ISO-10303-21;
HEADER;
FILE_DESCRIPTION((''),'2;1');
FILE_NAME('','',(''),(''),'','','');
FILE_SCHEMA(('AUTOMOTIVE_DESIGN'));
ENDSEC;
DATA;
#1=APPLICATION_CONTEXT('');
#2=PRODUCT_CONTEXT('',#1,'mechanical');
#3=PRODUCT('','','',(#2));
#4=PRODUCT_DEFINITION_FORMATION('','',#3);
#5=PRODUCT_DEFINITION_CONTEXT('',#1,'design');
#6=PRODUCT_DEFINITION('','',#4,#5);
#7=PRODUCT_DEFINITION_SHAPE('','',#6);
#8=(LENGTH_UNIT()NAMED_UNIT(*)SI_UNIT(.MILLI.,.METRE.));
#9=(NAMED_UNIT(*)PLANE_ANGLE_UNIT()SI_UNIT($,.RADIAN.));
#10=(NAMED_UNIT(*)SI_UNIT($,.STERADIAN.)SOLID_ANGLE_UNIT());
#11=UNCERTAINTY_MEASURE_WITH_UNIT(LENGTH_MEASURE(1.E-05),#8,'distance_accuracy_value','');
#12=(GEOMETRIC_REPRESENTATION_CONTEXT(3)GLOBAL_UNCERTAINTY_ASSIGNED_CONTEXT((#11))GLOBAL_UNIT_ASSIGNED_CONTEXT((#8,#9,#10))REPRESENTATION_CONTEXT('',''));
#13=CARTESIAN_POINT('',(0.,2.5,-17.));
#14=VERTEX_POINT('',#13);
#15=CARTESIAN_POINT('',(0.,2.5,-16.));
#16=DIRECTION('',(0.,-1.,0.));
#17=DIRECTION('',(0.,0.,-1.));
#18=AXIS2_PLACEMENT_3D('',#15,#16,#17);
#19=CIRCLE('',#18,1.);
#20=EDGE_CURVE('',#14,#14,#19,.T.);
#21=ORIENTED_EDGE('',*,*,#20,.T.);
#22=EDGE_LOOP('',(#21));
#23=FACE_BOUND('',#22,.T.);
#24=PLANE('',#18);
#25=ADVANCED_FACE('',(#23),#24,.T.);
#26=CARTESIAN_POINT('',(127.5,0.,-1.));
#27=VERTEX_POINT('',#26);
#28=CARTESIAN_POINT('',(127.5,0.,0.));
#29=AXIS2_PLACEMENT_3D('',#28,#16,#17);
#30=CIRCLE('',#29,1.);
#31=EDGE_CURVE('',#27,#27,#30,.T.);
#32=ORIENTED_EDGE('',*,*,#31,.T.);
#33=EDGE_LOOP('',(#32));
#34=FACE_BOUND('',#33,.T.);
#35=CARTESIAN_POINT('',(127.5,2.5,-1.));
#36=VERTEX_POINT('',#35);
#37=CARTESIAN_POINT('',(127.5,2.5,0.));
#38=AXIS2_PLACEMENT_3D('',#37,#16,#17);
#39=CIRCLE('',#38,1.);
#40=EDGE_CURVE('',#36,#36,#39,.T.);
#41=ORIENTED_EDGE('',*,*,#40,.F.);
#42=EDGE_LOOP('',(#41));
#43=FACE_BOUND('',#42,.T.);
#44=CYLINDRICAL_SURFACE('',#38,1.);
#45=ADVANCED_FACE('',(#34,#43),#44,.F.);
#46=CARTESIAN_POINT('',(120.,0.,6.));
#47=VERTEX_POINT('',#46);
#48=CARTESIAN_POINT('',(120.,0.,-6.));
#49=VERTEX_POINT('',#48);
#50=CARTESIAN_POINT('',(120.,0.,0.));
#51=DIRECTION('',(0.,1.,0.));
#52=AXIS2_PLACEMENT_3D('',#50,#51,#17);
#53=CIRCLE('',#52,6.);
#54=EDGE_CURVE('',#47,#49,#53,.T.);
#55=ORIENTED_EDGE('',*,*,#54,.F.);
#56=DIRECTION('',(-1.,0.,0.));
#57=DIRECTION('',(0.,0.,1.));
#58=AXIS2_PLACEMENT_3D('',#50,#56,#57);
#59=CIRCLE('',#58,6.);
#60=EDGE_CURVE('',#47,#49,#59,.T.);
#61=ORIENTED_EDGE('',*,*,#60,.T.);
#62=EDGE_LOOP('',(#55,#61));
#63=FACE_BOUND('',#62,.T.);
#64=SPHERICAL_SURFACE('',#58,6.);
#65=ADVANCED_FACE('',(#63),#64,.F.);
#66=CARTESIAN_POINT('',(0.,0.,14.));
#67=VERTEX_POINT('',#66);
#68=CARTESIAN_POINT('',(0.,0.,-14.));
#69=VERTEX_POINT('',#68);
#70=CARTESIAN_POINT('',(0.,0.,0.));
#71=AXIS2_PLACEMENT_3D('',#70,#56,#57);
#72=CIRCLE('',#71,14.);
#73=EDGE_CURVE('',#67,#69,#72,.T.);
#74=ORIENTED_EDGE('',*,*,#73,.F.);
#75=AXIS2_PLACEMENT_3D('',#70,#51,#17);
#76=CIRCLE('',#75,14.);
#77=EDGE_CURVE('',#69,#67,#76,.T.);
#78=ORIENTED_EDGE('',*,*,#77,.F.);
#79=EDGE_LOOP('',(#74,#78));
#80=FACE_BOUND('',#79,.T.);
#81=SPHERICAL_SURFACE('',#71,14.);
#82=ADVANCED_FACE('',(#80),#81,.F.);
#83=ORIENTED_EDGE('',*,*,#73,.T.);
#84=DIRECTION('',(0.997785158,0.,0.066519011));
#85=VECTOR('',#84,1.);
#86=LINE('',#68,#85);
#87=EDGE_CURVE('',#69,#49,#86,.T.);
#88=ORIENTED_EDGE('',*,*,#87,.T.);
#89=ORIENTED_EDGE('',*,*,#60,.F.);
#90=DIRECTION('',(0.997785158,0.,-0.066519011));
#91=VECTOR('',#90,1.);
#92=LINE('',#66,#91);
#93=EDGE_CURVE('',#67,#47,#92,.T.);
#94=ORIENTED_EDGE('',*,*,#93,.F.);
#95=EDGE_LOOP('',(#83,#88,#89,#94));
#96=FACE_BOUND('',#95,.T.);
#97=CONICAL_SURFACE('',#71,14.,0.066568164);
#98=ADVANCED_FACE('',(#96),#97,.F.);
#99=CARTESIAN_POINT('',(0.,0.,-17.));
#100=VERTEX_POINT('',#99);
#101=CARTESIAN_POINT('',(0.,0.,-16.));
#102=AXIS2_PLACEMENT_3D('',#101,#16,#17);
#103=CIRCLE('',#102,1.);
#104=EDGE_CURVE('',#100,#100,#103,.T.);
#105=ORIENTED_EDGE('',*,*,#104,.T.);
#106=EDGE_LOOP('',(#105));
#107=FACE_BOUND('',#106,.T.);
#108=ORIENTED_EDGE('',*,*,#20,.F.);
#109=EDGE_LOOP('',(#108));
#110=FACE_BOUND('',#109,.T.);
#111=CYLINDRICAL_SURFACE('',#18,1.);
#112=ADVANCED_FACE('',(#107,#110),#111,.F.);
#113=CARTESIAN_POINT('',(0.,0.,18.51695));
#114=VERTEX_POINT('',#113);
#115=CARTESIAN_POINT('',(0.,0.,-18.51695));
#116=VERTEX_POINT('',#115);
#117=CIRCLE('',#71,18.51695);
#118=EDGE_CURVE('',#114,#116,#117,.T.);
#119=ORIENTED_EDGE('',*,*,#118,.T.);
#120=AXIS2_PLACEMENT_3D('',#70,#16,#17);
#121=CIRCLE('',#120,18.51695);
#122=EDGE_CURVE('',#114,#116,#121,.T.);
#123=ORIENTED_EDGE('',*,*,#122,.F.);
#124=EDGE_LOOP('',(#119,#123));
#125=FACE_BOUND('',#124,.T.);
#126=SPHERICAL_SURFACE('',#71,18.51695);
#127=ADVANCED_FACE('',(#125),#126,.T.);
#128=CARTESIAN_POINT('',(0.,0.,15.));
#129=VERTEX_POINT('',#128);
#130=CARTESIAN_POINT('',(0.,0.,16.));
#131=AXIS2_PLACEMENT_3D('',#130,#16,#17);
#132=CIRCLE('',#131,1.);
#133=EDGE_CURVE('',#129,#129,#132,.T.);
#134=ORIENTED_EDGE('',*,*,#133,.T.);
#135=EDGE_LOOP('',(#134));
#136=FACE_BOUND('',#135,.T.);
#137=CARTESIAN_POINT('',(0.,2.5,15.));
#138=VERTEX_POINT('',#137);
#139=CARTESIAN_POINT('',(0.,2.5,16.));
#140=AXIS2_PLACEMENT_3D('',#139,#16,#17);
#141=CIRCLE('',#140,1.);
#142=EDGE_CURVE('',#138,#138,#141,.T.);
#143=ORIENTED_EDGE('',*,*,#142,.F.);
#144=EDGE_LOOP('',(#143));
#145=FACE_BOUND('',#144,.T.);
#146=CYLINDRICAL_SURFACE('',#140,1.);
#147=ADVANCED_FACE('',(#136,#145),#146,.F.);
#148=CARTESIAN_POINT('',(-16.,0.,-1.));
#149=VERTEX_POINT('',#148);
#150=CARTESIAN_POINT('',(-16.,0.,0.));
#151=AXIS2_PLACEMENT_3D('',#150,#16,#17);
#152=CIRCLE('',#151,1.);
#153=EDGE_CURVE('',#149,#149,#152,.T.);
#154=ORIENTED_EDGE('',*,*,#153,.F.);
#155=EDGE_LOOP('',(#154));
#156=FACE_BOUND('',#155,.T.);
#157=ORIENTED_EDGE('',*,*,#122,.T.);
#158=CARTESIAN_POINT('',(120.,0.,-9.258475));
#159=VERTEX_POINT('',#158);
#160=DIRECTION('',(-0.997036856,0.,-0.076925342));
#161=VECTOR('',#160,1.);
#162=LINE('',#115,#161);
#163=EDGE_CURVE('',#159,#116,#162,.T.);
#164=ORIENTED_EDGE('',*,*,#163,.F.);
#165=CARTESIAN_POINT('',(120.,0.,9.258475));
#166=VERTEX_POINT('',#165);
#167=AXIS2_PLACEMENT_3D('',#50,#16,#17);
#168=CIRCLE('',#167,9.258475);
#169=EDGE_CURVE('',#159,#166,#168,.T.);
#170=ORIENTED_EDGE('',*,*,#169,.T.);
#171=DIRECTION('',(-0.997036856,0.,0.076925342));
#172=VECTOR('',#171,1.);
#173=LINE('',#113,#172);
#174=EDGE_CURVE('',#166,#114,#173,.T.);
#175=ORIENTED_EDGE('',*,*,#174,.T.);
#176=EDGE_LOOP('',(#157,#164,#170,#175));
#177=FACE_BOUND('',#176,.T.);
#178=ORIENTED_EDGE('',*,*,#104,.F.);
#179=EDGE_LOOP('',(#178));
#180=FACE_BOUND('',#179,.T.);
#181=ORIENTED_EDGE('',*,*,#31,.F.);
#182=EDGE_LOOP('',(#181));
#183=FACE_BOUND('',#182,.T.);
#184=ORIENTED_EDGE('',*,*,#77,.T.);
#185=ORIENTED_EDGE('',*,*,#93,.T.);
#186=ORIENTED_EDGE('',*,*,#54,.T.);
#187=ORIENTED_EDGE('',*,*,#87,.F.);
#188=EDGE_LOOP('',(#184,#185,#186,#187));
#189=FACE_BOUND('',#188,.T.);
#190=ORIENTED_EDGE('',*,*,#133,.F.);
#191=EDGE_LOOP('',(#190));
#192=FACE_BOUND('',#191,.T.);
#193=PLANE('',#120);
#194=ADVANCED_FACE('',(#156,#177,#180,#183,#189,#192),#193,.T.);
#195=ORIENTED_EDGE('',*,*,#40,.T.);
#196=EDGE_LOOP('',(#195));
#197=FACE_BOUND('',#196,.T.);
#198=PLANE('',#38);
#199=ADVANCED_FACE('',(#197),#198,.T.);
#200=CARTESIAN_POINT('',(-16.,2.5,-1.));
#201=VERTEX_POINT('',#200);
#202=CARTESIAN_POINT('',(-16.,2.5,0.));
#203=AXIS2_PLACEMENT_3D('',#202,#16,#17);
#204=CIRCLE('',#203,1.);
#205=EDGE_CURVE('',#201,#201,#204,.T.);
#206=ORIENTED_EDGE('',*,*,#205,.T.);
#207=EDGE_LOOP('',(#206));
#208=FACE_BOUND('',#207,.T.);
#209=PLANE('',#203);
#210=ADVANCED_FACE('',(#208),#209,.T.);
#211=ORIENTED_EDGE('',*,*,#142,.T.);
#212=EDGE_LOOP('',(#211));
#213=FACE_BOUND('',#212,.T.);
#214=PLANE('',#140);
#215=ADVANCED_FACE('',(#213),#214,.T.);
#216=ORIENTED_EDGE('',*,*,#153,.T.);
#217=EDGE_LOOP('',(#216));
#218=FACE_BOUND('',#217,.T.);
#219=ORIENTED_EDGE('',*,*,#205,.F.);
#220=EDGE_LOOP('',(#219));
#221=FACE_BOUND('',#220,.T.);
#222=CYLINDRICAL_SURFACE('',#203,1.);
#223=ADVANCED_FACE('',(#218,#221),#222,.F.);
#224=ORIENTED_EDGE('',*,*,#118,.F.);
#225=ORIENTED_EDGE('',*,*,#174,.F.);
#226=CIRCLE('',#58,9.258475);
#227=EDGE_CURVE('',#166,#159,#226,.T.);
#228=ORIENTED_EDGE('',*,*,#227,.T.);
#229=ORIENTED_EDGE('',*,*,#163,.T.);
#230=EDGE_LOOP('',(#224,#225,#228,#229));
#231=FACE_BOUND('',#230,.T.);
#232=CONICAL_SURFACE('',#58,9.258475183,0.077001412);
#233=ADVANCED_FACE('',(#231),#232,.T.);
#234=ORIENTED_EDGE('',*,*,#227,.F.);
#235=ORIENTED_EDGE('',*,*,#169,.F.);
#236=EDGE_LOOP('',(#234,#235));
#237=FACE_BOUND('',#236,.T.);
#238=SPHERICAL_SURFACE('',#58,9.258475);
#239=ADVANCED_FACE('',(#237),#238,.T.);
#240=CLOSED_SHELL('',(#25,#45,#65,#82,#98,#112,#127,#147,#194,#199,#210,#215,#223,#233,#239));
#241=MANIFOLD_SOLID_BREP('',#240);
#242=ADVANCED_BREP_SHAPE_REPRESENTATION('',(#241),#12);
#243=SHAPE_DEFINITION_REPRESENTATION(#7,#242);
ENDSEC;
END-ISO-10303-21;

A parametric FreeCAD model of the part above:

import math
import FreeCAD as App
import Part
import Sketcher
Q = App.Units.Quantity

doc = App.newDocument("Part")
body = doc.addObject("PartDesign::Body", "Body")

sketch1 = body.newObject("Sketcher::SketchObject", "Sketch")
sketch1.AttachmentSupport = (doc.getObject("XZ_Plane"), [""])
sketch1.MapMode = "FlatFace"
sketch1.addGeometry([
    Part.LineSegment(App.Vector(120, -9.258475, 0), App.Vector(0, -18.51695, 0)),
    Part.ArcOfCircle(Part.Circle(App.Vector(0, 0, 0), App.Vector(0, 0, 1), 18.51695), math.radians(180), math.radians(270)),
    Part.LineSegment(App.Vector(-18.51695, 0, 0), App.Vector(-14, 0, 0)),
    Part.ArcOfCircle(Part.Circle(App.Vector(0, 0, 0), App.Vector(0, 0, 1), 14), math.radians(180), math.radians(270)),
    Part.LineSegment(App.Vector(0, -14, 0), App.Vector(120, -6, 0)),
    Part.ArcOfCircle(Part.Circle(App.Vector(120, 0, 0), App.Vector(0, 0, 1), 6), math.radians(-90), math.radians(0)),
    Part.LineSegment(App.Vector(126, 0, 0), App.Vector(129.258475, 0, 0)),
    Part.ArcOfCircle(Part.Circle(App.Vector(120, 0, 0), App.Vector(0, 0, 1), 9.258475), math.radians(-90), math.radians(0)),
], False)
sketch1.addConstraint([
    Sketcher.Constraint("Coincident", 0, 2, 1, 2),
    Sketcher.Constraint("Coincident", 1, 1, 2, 1),
    Sketcher.Constraint("Coincident", 2, 2, 3, 1),
    Sketcher.Constraint("Coincident", 3, 2, 4, 1),
    Sketcher.Constraint("Coincident", 4, 2, 5, 1),
    Sketcher.Constraint("Coincident", 5, 2, 6, 1),
    Sketcher.Constraint("Coincident", 6, 2, 7, 2),
    Sketcher.Constraint("Coincident", 7, 1, 0, 1),
    Sketcher.Constraint("Horizontal", 2),
    Sketcher.Constraint("Horizontal", 6),
    Sketcher.Constraint("Coincident", 1, 3, -1, 1),
    Sketcher.Constraint("Coincident", 3, 3, -1, 1),
    Sketcher.Constraint("Coincident", 7, 3, 5, 3),
    Sketcher.Constraint("PointOnObject", 5, 3, -1),
    Sketcher.Constraint("PointOnObject", 0, 2, -2),
    Sketcher.Constraint("PointOnObject", 1, 1, -1),
    Sketcher.Constraint("PointOnObject", 3, 2, -2),
    Sketcher.Constraint("PointOnObject", 5, 2, -1),
    Sketcher.Constraint("Vertical", 7, 3, 4, 2),
    Sketcher.Constraint("Vertical", 4, 2, 7, 1),
    Sketcher.Constraint("Radius", 3, Q("14 mm")),
    Sketcher.Constraint("Radius", 5, Q("6 mm")),
    Sketcher.Constraint("DistanceX", -1, 1, 5, 3, Q("120 mm")),
    Sketcher.Constraint("Radius", 1, Q("18.51695 mm")),
    Sketcher.Constraint("Radius", 7, Q("9.258475 mm")),
])
revolution = body.newObject("PartDesign::Revolution", "Revolution")
revolution.Profile = sketch1
revolution.ReferenceAxis = (sketch1, ["H_Axis"])
revolution.Angle = 180

sketch2 = body.newObject("Sketcher::SketchObject", "Sketch001")
sketch2.AttachmentSupport = (doc.getObject("XZ_Plane"), [""])
sketch2.MapMode = "FlatFace"
sketch2.addGeometry([
    Part.Circle(App.Vector(-16, 0, 0), App.Vector(0, 0, 1), 1),
    Part.Circle(App.Vector(0, 16, 0), App.Vector(0, 0, 1), 1),
    Part.Circle(App.Vector(0, -16, 0), App.Vector(0, 0, 1), 1),
    Part.Circle(App.Vector(127.5, 0, 0), App.Vector(0, 0, 1), 1),
], False)
sketch2.addConstraint([
    Sketcher.Constraint("Equal", 0, 1),
    Sketcher.Constraint("Equal", 1, 2),
    Sketcher.Constraint("Equal", 2, 3),
    Sketcher.Constraint("Symmetric", 1, 3, 2, 3, -1, 1),
    Sketcher.Constraint("PointOnObject", 0, 3, -1),
    Sketcher.Constraint("PointOnObject", 1, 3, -2),
    Sketcher.Constraint("PointOnObject", 3, 3, -1),
    Sketcher.Constraint("Diameter", 0, Q("2 mm")),
    Sketcher.Constraint("DistanceX", 0, 3, -1, 1, Q("16 mm")),
    Sketcher.Constraint("DistanceY", -1, 1, 1, 3, Q("16 mm")),
    Sketcher.Constraint("DistanceX", -1, 1, 3, 3, Q("127.5 mm")),
])
pocket1 = body.newObject("PartDesign::Pocket", "Pocket")
pocket1.Profile = sketch2
pocket1.Length = 2.5

doc.recompute()
